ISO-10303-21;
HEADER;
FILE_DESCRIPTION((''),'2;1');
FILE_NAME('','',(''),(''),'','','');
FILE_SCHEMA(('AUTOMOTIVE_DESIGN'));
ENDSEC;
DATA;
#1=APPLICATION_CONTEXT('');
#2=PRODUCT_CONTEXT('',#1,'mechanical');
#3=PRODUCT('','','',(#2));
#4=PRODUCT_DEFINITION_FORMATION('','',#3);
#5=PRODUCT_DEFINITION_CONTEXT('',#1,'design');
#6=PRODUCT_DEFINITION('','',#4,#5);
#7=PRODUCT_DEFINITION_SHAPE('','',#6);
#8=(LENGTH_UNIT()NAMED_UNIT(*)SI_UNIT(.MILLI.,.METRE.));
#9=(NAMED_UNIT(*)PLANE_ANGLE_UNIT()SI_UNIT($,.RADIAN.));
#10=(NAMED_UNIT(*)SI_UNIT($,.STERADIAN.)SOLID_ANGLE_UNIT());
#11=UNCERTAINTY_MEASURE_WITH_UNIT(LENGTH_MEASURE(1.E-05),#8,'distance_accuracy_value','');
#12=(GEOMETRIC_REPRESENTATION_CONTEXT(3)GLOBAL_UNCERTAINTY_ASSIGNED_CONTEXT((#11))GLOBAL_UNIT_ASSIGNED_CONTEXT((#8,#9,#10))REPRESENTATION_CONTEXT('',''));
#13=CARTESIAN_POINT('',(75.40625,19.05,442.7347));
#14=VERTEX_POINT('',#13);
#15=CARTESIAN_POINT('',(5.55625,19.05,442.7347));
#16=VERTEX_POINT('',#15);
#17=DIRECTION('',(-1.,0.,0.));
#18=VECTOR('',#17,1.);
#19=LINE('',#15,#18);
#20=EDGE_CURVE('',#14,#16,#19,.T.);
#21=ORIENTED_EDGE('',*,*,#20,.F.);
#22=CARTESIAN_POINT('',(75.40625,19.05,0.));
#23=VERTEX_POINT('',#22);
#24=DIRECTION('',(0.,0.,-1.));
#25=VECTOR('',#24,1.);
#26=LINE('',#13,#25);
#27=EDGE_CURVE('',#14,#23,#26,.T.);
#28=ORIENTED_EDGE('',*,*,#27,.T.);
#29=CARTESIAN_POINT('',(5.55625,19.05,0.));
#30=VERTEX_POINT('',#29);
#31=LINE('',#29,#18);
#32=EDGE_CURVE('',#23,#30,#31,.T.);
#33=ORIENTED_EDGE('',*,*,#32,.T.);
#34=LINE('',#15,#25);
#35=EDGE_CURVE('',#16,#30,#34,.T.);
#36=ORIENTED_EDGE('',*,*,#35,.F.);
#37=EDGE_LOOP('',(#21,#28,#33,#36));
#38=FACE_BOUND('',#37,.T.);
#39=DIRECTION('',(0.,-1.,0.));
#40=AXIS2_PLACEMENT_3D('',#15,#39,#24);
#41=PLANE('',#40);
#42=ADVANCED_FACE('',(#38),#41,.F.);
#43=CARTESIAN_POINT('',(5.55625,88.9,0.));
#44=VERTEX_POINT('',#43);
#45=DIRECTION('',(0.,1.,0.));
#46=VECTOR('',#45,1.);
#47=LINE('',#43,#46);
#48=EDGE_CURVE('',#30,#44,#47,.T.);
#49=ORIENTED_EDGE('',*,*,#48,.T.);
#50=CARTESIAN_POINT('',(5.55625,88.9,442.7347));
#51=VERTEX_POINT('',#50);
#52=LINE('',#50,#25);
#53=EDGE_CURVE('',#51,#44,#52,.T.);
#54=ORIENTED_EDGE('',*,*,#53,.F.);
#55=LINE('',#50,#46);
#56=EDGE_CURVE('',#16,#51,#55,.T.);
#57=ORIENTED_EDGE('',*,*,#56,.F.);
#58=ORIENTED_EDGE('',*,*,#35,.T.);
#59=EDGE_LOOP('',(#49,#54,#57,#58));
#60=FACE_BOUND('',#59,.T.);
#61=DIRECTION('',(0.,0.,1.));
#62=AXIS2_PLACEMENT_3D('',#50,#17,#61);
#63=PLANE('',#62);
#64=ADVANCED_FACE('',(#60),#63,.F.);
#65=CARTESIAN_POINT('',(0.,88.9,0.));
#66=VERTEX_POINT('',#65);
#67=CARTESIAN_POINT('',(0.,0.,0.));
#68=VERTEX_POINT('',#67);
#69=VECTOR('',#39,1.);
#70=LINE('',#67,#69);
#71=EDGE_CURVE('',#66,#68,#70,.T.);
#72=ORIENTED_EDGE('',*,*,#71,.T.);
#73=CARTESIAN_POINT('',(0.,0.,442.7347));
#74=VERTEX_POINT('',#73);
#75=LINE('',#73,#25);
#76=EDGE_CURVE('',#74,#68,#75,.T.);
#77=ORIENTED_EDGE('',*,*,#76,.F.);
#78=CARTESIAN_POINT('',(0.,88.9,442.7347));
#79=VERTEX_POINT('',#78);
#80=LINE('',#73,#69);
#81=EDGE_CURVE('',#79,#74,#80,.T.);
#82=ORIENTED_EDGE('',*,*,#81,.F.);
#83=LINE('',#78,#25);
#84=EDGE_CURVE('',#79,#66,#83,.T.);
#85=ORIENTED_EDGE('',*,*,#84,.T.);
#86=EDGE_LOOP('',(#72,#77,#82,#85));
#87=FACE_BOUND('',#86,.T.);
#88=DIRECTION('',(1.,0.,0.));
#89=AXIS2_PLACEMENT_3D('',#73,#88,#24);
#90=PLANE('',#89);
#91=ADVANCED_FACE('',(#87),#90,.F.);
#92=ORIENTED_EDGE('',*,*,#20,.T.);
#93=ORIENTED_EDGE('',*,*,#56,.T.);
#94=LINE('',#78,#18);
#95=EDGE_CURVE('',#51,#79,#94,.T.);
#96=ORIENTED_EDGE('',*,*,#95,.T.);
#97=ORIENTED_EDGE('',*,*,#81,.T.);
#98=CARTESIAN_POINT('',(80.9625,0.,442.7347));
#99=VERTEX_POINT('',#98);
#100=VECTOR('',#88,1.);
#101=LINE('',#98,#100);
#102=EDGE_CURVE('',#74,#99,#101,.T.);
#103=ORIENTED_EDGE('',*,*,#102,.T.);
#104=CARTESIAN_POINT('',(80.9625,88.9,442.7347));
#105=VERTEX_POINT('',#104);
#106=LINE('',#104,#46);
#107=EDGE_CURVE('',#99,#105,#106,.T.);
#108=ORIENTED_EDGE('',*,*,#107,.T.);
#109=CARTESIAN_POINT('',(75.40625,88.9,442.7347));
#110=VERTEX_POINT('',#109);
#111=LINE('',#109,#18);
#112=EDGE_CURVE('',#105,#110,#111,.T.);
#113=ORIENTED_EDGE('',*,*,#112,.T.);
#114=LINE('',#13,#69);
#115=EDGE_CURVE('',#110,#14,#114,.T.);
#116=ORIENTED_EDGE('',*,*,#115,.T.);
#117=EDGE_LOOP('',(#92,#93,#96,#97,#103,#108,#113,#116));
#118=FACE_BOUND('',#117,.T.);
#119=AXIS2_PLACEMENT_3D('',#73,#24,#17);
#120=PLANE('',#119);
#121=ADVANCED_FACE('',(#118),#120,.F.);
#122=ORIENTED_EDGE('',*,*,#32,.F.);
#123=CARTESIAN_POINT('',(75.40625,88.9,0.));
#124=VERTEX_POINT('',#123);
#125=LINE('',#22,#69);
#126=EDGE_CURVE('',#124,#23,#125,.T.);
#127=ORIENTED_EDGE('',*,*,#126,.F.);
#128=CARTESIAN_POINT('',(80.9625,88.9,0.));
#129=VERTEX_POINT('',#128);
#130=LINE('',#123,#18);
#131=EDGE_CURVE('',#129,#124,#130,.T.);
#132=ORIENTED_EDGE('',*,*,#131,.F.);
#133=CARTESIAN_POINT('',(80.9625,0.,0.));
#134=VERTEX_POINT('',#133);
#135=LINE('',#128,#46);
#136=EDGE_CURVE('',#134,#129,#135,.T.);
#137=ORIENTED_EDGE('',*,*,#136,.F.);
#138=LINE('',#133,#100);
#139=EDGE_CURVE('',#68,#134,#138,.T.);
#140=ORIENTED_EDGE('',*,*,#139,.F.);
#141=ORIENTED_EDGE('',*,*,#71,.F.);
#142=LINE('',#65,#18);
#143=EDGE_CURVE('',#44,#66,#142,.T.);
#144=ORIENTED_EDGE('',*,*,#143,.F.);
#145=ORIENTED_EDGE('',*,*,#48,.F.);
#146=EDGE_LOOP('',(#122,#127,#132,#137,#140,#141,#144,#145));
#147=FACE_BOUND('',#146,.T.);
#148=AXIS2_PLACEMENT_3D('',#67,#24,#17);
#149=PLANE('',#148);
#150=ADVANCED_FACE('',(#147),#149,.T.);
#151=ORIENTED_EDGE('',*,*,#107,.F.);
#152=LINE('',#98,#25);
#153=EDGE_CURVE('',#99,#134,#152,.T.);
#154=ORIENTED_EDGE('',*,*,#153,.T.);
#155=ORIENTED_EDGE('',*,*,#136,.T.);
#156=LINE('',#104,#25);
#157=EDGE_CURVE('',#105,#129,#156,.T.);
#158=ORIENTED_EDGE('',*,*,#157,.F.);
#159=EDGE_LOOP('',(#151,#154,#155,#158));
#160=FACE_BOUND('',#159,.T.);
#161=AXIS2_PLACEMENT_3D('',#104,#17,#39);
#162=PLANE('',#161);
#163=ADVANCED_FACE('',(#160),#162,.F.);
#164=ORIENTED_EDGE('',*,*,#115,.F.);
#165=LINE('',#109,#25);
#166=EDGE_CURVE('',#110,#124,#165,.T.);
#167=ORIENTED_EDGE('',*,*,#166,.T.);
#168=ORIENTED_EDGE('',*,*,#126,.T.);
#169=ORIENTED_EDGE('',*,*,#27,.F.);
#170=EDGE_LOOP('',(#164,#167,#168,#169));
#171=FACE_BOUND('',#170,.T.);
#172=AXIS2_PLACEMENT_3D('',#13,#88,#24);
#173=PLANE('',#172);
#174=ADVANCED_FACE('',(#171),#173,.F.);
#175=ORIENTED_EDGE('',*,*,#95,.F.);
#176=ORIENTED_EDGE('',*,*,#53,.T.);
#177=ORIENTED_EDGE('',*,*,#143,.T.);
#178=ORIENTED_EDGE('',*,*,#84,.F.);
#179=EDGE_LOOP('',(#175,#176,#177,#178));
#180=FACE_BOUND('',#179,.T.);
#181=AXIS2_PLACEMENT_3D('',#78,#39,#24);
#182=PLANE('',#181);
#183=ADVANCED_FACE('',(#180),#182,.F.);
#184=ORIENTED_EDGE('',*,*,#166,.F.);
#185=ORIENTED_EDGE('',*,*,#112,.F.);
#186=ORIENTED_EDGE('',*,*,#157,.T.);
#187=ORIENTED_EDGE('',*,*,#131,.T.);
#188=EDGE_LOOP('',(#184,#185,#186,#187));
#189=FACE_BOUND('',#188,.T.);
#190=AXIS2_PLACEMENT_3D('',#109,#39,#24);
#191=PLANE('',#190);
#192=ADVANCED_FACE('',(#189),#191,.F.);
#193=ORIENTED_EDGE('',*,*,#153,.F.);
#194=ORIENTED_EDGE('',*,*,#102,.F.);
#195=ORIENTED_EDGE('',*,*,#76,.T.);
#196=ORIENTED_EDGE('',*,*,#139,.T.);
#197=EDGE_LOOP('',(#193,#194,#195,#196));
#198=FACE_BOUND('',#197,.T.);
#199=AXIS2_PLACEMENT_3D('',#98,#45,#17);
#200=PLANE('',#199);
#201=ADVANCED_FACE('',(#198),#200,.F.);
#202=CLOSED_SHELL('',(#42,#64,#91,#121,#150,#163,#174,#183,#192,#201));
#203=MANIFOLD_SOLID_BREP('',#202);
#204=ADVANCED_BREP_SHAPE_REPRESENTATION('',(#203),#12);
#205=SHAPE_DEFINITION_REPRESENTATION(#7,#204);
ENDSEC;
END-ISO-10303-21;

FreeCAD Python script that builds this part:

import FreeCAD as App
import Part
import Sketcher

V = App.Vector
Q = App.Units.Quantity

doc = App.newDocument("Part")
body = doc.addObject("PartDesign::Body", "Body")

sketch1 = body.newObject("Sketcher::SketchObject", "Sketch")
sketch1.AttachmentSupport = (doc.getObject("XY_Plane"), [""])
sketch1.MapMode = "FlatFace"
sketch1.addGeometry(Part.LineSegment(V(0, 89, 0), V(0, 0, 0)), False)
sketch1.addGeometry(Part.LineSegment(V(0, 0, 0), V(81, 0, 0)), False)
sketch1.addGeometry(Part.LineSegment(V(81, 0, 0), V(81, 89, 0)), False)
sketch1.addGeometry(Part.LineSegment(V(81, 89, 0), V(75, 89, 0)), False)
sketch1.addGeometry(Part.LineSegment(V(75, 89, 0), V(75, 19, 0)), False)
sketch1.addGeometry(Part.LineSegment(V(75, 19, 0), V(6, 19, 0)), False)
sketch1.addGeometry(Part.LineSegment(V(6, 19, 0), V(6, 89, 0)), False)
sketch1.addGeometry(Part.LineSegment(V(6, 89, 0), V(0, 89, 0)), False)
sketch1.addConstraint(Sketcher.Constraint("Coincident", 0, 2, 1, 1))
sketch1.addConstraint(Sketcher.Constraint("Coincident", 1, 2, 2, 1))
sketch1.addConstraint(Sketcher.Constraint("Coincident", 2, 2, 3, 1))
sketch1.addConstraint(Sketcher.Constraint("Coincident", 3, 2, 4, 1))
sketch1.addConstraint(Sketcher.Constraint("Coincident", 4, 2, 5, 1))
sketch1.addConstraint(Sketcher.Constraint("Coincident", 5, 2, 6, 1))
sketch1.addConstraint(Sketcher.Constraint("Coincident", 6, 2, 7, 1))
sketch1.addConstraint(Sketcher.Constraint("Coincident", 7, 2, 0, 1))
sketch1.addConstraint(Sketcher.Constraint("Vertical", 0))
sketch1.addConstraint(Sketcher.Constraint("Horizontal", 1))
sketch1.addConstraint(Sketcher.Constraint("Vertical", 2))
sketch1.addConstraint(Sketcher.Constraint("Horizontal", 3))
sketch1.addConstraint(Sketcher.Constraint("Vertical", 4))
sketch1.addConstraint(Sketcher.Constraint("Horizontal", 5))
sketch1.addConstraint(Sketcher.Constraint("Vertical", 6))
sketch1.addConstraint(Sketcher.Constraint("Horizontal", 7))
sketch1.addConstraint(Sketcher.Constraint("Coincident", 0, 2, -1, 1))
sketch1.addConstraint(Sketcher.Constraint("Horizontal", 3, 2, 6, 2))
sketch1.addConstraint(Sketcher.Constraint("Equal", 3, 7))
sketch1.addConstraint(Sketcher.Constraint("Equal", 5, 4))
sketch1.addConstraint(Sketcher.Constraint("DistanceY", 0, 2, 0, 1, Q("3.5 in")))
sketch1.addConstraint(Sketcher.Constraint("DistanceX", 5, 2, 5, 1, Q("2.75 in")))
sketch1.addConstraint(Sketcher.Constraint("DistanceX", 1, 1, 1, 2, Q("3.1875 in")))
pad1 = body.newObject("PartDesign::Pad", "Pad")
pad1.Profile = sketch1
pad1.Length = Q("17.4305 in")

doc.recompute()
